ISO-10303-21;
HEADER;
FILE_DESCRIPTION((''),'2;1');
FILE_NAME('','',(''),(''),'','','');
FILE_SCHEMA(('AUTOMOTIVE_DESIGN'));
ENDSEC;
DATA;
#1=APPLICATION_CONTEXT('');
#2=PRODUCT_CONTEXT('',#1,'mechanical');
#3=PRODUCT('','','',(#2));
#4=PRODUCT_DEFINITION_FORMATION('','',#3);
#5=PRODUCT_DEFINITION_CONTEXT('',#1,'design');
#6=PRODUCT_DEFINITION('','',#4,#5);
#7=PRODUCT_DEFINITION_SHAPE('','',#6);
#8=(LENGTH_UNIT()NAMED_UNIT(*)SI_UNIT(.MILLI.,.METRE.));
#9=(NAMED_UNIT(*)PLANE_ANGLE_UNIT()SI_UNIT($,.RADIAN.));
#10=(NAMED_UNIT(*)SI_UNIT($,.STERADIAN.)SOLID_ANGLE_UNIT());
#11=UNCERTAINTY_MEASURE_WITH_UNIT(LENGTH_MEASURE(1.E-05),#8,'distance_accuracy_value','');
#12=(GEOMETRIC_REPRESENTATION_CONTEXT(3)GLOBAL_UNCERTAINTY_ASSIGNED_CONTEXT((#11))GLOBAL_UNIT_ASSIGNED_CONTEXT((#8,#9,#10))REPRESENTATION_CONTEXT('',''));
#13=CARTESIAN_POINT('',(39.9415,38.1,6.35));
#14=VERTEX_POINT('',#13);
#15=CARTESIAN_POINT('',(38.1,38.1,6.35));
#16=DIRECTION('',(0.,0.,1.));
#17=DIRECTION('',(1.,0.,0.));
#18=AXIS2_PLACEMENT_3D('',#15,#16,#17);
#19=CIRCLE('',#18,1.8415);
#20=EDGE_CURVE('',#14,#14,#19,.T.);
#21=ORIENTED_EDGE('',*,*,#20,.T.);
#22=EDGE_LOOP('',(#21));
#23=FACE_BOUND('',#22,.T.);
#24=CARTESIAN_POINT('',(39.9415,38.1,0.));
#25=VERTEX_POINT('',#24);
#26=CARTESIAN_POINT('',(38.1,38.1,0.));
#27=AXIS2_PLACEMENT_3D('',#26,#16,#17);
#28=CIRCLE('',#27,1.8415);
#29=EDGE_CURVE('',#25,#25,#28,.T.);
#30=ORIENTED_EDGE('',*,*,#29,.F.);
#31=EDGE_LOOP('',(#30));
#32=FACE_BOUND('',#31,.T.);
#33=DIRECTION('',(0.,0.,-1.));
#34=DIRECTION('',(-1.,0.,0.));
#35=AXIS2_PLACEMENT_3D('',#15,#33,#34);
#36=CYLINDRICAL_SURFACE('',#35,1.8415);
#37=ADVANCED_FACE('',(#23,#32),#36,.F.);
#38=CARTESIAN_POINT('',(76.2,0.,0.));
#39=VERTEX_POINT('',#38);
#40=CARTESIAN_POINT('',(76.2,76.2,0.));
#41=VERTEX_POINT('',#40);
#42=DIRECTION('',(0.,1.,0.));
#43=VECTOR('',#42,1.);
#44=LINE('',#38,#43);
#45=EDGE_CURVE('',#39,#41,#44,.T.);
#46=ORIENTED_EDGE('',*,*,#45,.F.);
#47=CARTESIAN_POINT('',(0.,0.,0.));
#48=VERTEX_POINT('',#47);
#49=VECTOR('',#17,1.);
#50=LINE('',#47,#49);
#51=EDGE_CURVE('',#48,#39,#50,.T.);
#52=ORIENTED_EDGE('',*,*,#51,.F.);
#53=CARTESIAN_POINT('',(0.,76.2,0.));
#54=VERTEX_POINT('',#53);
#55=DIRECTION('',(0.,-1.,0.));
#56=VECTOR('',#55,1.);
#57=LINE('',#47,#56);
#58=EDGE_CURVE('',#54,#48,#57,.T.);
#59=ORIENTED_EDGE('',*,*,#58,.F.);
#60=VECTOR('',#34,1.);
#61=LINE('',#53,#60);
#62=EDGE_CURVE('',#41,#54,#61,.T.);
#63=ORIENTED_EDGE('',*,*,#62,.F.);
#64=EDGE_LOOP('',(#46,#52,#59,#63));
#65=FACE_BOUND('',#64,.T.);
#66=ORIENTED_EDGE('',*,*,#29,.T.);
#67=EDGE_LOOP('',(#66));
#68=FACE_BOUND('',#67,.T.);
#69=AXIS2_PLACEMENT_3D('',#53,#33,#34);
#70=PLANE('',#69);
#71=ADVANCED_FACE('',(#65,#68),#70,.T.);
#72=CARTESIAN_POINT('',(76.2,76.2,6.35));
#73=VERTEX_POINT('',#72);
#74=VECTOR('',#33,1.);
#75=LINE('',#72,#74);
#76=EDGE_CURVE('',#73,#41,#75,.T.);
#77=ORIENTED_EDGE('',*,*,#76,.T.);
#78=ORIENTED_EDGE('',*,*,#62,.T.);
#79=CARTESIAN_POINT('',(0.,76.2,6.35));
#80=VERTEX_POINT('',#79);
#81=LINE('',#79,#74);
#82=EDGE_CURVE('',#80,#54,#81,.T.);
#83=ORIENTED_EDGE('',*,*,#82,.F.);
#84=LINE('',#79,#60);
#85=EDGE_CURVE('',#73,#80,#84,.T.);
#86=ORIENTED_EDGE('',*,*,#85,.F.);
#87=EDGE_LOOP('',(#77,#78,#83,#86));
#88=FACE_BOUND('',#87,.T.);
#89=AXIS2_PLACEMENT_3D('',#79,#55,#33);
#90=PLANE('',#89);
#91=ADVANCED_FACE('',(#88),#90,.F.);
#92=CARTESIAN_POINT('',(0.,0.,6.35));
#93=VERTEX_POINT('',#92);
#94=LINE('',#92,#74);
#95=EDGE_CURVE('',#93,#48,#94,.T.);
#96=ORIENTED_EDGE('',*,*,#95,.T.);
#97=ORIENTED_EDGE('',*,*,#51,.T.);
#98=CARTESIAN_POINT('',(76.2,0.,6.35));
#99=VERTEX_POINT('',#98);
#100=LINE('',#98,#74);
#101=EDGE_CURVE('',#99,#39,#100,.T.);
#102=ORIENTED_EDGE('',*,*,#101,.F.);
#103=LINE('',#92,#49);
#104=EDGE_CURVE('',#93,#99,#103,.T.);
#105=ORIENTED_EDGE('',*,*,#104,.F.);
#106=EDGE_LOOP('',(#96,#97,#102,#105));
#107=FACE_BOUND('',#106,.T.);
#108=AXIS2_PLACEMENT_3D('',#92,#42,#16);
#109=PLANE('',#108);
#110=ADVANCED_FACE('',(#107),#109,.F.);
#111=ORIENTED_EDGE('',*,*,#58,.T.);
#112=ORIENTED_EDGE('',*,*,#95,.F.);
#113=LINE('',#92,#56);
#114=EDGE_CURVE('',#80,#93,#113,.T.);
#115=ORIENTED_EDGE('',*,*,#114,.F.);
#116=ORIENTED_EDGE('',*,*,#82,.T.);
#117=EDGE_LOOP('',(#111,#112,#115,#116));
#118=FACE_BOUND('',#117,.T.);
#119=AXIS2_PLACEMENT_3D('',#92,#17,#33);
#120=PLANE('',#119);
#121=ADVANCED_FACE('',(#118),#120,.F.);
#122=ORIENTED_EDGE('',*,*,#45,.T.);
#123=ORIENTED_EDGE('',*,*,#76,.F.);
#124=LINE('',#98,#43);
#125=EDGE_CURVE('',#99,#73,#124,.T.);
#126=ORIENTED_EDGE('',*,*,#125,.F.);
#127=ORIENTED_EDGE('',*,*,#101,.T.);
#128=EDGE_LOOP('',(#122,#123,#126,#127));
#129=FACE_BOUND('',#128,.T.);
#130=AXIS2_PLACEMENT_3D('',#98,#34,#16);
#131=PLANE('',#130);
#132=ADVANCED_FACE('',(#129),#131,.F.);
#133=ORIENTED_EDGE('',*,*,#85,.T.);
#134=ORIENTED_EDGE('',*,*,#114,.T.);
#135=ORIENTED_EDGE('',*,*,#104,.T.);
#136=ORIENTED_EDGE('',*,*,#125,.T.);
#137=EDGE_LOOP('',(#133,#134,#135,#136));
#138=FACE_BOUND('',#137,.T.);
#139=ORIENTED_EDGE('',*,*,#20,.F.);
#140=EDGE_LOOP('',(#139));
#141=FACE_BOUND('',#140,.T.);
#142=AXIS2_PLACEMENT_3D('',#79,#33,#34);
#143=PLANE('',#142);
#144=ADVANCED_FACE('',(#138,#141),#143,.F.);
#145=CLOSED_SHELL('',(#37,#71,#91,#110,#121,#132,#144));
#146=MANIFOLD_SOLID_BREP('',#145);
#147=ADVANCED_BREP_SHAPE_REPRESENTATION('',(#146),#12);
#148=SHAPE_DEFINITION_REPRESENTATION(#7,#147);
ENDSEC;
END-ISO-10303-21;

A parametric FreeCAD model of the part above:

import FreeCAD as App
import Part
import Sketcher

V = App.Vector
Q = App.Units.Quantity

doc = App.newDocument("Part")
body = doc.addObject("PartDesign::Body", "Body")

sketch1 = body.newObject("Sketcher::SketchObject", "Sketch")
sketch1.AttachmentSupport = (doc.getObject("XY_Plane"), [""])
sketch1.MapMode = "FlatFace"
sketch1.addGeometry(Part.LineSegment(V(0, 76.2, 0), V(0, 0, 0)), False)
sketch1.addGeometry(Part.LineSegment(V(0, 0, 0), V(76.2, 0, 0)), False)
sketch1.addGeometry(Part.LineSegment(V(76.2, 0, 0), V(76.2, 76.2, 0)), False)
sketch1.addGeometry(Part.LineSegment(V(76.2, 76.2, 0), V(0, 76.2, 0)), False)
sketch1.addGeometry(Part.Circle(V(38.1, 38.1, 0), V(0, 0, 1), 1.8), False)
sketch1.addConstraint(Sketcher.Constraint("Coincident", 0, 2, 1, 1))
sketch1.addConstraint(Sketcher.Constraint("Coincident", 1, 2, 2, 1))
sketch1.addConstraint(Sketcher.Constraint("Coincident", 2, 2, 3, 1))
sketch1.addConstraint(Sketcher.Constraint("Coincident", 3, 2, 0, 1))
sketch1.addConstraint(Sketcher.Constraint("Vertical", 0))
sketch1.addConstraint(Sketcher.Constraint("Horizontal", 1))
sketch1.addConstraint(Sketcher.Constraint("Vertical", 2))
sketch1.addConstraint(Sketcher.Constraint("Horizontal", 3))
sketch1.addConstraint(Sketcher.Constraint("Coincident", 0, 2, -1, 1))
sketch1.addConstraint(Sketcher.Constraint("Equal", 3, 0))
sketch1.addConstraint(Sketcher.Constraint("DistanceX", 1, 1, 1, 2, Q("3 in")))
sketch1.addConstraint(Sketcher.Constraint("Diameter", 4, Q("0.145 in")))
sketch1.addConstraint(Sketcher.Constraint("DistanceX", -1, 1, 4, 3, Q("1.5 in")))
sketch1.addConstraint(Sketcher.Constraint("DistanceY", -1, 1, 4, 3, Q("1.5 in")))
pad1 = body.newObject("PartDesign::Pad", "Pad")
pad1.Profile = sketch1
pad1.Length = Q("0.25 in")

doc.recompute()
